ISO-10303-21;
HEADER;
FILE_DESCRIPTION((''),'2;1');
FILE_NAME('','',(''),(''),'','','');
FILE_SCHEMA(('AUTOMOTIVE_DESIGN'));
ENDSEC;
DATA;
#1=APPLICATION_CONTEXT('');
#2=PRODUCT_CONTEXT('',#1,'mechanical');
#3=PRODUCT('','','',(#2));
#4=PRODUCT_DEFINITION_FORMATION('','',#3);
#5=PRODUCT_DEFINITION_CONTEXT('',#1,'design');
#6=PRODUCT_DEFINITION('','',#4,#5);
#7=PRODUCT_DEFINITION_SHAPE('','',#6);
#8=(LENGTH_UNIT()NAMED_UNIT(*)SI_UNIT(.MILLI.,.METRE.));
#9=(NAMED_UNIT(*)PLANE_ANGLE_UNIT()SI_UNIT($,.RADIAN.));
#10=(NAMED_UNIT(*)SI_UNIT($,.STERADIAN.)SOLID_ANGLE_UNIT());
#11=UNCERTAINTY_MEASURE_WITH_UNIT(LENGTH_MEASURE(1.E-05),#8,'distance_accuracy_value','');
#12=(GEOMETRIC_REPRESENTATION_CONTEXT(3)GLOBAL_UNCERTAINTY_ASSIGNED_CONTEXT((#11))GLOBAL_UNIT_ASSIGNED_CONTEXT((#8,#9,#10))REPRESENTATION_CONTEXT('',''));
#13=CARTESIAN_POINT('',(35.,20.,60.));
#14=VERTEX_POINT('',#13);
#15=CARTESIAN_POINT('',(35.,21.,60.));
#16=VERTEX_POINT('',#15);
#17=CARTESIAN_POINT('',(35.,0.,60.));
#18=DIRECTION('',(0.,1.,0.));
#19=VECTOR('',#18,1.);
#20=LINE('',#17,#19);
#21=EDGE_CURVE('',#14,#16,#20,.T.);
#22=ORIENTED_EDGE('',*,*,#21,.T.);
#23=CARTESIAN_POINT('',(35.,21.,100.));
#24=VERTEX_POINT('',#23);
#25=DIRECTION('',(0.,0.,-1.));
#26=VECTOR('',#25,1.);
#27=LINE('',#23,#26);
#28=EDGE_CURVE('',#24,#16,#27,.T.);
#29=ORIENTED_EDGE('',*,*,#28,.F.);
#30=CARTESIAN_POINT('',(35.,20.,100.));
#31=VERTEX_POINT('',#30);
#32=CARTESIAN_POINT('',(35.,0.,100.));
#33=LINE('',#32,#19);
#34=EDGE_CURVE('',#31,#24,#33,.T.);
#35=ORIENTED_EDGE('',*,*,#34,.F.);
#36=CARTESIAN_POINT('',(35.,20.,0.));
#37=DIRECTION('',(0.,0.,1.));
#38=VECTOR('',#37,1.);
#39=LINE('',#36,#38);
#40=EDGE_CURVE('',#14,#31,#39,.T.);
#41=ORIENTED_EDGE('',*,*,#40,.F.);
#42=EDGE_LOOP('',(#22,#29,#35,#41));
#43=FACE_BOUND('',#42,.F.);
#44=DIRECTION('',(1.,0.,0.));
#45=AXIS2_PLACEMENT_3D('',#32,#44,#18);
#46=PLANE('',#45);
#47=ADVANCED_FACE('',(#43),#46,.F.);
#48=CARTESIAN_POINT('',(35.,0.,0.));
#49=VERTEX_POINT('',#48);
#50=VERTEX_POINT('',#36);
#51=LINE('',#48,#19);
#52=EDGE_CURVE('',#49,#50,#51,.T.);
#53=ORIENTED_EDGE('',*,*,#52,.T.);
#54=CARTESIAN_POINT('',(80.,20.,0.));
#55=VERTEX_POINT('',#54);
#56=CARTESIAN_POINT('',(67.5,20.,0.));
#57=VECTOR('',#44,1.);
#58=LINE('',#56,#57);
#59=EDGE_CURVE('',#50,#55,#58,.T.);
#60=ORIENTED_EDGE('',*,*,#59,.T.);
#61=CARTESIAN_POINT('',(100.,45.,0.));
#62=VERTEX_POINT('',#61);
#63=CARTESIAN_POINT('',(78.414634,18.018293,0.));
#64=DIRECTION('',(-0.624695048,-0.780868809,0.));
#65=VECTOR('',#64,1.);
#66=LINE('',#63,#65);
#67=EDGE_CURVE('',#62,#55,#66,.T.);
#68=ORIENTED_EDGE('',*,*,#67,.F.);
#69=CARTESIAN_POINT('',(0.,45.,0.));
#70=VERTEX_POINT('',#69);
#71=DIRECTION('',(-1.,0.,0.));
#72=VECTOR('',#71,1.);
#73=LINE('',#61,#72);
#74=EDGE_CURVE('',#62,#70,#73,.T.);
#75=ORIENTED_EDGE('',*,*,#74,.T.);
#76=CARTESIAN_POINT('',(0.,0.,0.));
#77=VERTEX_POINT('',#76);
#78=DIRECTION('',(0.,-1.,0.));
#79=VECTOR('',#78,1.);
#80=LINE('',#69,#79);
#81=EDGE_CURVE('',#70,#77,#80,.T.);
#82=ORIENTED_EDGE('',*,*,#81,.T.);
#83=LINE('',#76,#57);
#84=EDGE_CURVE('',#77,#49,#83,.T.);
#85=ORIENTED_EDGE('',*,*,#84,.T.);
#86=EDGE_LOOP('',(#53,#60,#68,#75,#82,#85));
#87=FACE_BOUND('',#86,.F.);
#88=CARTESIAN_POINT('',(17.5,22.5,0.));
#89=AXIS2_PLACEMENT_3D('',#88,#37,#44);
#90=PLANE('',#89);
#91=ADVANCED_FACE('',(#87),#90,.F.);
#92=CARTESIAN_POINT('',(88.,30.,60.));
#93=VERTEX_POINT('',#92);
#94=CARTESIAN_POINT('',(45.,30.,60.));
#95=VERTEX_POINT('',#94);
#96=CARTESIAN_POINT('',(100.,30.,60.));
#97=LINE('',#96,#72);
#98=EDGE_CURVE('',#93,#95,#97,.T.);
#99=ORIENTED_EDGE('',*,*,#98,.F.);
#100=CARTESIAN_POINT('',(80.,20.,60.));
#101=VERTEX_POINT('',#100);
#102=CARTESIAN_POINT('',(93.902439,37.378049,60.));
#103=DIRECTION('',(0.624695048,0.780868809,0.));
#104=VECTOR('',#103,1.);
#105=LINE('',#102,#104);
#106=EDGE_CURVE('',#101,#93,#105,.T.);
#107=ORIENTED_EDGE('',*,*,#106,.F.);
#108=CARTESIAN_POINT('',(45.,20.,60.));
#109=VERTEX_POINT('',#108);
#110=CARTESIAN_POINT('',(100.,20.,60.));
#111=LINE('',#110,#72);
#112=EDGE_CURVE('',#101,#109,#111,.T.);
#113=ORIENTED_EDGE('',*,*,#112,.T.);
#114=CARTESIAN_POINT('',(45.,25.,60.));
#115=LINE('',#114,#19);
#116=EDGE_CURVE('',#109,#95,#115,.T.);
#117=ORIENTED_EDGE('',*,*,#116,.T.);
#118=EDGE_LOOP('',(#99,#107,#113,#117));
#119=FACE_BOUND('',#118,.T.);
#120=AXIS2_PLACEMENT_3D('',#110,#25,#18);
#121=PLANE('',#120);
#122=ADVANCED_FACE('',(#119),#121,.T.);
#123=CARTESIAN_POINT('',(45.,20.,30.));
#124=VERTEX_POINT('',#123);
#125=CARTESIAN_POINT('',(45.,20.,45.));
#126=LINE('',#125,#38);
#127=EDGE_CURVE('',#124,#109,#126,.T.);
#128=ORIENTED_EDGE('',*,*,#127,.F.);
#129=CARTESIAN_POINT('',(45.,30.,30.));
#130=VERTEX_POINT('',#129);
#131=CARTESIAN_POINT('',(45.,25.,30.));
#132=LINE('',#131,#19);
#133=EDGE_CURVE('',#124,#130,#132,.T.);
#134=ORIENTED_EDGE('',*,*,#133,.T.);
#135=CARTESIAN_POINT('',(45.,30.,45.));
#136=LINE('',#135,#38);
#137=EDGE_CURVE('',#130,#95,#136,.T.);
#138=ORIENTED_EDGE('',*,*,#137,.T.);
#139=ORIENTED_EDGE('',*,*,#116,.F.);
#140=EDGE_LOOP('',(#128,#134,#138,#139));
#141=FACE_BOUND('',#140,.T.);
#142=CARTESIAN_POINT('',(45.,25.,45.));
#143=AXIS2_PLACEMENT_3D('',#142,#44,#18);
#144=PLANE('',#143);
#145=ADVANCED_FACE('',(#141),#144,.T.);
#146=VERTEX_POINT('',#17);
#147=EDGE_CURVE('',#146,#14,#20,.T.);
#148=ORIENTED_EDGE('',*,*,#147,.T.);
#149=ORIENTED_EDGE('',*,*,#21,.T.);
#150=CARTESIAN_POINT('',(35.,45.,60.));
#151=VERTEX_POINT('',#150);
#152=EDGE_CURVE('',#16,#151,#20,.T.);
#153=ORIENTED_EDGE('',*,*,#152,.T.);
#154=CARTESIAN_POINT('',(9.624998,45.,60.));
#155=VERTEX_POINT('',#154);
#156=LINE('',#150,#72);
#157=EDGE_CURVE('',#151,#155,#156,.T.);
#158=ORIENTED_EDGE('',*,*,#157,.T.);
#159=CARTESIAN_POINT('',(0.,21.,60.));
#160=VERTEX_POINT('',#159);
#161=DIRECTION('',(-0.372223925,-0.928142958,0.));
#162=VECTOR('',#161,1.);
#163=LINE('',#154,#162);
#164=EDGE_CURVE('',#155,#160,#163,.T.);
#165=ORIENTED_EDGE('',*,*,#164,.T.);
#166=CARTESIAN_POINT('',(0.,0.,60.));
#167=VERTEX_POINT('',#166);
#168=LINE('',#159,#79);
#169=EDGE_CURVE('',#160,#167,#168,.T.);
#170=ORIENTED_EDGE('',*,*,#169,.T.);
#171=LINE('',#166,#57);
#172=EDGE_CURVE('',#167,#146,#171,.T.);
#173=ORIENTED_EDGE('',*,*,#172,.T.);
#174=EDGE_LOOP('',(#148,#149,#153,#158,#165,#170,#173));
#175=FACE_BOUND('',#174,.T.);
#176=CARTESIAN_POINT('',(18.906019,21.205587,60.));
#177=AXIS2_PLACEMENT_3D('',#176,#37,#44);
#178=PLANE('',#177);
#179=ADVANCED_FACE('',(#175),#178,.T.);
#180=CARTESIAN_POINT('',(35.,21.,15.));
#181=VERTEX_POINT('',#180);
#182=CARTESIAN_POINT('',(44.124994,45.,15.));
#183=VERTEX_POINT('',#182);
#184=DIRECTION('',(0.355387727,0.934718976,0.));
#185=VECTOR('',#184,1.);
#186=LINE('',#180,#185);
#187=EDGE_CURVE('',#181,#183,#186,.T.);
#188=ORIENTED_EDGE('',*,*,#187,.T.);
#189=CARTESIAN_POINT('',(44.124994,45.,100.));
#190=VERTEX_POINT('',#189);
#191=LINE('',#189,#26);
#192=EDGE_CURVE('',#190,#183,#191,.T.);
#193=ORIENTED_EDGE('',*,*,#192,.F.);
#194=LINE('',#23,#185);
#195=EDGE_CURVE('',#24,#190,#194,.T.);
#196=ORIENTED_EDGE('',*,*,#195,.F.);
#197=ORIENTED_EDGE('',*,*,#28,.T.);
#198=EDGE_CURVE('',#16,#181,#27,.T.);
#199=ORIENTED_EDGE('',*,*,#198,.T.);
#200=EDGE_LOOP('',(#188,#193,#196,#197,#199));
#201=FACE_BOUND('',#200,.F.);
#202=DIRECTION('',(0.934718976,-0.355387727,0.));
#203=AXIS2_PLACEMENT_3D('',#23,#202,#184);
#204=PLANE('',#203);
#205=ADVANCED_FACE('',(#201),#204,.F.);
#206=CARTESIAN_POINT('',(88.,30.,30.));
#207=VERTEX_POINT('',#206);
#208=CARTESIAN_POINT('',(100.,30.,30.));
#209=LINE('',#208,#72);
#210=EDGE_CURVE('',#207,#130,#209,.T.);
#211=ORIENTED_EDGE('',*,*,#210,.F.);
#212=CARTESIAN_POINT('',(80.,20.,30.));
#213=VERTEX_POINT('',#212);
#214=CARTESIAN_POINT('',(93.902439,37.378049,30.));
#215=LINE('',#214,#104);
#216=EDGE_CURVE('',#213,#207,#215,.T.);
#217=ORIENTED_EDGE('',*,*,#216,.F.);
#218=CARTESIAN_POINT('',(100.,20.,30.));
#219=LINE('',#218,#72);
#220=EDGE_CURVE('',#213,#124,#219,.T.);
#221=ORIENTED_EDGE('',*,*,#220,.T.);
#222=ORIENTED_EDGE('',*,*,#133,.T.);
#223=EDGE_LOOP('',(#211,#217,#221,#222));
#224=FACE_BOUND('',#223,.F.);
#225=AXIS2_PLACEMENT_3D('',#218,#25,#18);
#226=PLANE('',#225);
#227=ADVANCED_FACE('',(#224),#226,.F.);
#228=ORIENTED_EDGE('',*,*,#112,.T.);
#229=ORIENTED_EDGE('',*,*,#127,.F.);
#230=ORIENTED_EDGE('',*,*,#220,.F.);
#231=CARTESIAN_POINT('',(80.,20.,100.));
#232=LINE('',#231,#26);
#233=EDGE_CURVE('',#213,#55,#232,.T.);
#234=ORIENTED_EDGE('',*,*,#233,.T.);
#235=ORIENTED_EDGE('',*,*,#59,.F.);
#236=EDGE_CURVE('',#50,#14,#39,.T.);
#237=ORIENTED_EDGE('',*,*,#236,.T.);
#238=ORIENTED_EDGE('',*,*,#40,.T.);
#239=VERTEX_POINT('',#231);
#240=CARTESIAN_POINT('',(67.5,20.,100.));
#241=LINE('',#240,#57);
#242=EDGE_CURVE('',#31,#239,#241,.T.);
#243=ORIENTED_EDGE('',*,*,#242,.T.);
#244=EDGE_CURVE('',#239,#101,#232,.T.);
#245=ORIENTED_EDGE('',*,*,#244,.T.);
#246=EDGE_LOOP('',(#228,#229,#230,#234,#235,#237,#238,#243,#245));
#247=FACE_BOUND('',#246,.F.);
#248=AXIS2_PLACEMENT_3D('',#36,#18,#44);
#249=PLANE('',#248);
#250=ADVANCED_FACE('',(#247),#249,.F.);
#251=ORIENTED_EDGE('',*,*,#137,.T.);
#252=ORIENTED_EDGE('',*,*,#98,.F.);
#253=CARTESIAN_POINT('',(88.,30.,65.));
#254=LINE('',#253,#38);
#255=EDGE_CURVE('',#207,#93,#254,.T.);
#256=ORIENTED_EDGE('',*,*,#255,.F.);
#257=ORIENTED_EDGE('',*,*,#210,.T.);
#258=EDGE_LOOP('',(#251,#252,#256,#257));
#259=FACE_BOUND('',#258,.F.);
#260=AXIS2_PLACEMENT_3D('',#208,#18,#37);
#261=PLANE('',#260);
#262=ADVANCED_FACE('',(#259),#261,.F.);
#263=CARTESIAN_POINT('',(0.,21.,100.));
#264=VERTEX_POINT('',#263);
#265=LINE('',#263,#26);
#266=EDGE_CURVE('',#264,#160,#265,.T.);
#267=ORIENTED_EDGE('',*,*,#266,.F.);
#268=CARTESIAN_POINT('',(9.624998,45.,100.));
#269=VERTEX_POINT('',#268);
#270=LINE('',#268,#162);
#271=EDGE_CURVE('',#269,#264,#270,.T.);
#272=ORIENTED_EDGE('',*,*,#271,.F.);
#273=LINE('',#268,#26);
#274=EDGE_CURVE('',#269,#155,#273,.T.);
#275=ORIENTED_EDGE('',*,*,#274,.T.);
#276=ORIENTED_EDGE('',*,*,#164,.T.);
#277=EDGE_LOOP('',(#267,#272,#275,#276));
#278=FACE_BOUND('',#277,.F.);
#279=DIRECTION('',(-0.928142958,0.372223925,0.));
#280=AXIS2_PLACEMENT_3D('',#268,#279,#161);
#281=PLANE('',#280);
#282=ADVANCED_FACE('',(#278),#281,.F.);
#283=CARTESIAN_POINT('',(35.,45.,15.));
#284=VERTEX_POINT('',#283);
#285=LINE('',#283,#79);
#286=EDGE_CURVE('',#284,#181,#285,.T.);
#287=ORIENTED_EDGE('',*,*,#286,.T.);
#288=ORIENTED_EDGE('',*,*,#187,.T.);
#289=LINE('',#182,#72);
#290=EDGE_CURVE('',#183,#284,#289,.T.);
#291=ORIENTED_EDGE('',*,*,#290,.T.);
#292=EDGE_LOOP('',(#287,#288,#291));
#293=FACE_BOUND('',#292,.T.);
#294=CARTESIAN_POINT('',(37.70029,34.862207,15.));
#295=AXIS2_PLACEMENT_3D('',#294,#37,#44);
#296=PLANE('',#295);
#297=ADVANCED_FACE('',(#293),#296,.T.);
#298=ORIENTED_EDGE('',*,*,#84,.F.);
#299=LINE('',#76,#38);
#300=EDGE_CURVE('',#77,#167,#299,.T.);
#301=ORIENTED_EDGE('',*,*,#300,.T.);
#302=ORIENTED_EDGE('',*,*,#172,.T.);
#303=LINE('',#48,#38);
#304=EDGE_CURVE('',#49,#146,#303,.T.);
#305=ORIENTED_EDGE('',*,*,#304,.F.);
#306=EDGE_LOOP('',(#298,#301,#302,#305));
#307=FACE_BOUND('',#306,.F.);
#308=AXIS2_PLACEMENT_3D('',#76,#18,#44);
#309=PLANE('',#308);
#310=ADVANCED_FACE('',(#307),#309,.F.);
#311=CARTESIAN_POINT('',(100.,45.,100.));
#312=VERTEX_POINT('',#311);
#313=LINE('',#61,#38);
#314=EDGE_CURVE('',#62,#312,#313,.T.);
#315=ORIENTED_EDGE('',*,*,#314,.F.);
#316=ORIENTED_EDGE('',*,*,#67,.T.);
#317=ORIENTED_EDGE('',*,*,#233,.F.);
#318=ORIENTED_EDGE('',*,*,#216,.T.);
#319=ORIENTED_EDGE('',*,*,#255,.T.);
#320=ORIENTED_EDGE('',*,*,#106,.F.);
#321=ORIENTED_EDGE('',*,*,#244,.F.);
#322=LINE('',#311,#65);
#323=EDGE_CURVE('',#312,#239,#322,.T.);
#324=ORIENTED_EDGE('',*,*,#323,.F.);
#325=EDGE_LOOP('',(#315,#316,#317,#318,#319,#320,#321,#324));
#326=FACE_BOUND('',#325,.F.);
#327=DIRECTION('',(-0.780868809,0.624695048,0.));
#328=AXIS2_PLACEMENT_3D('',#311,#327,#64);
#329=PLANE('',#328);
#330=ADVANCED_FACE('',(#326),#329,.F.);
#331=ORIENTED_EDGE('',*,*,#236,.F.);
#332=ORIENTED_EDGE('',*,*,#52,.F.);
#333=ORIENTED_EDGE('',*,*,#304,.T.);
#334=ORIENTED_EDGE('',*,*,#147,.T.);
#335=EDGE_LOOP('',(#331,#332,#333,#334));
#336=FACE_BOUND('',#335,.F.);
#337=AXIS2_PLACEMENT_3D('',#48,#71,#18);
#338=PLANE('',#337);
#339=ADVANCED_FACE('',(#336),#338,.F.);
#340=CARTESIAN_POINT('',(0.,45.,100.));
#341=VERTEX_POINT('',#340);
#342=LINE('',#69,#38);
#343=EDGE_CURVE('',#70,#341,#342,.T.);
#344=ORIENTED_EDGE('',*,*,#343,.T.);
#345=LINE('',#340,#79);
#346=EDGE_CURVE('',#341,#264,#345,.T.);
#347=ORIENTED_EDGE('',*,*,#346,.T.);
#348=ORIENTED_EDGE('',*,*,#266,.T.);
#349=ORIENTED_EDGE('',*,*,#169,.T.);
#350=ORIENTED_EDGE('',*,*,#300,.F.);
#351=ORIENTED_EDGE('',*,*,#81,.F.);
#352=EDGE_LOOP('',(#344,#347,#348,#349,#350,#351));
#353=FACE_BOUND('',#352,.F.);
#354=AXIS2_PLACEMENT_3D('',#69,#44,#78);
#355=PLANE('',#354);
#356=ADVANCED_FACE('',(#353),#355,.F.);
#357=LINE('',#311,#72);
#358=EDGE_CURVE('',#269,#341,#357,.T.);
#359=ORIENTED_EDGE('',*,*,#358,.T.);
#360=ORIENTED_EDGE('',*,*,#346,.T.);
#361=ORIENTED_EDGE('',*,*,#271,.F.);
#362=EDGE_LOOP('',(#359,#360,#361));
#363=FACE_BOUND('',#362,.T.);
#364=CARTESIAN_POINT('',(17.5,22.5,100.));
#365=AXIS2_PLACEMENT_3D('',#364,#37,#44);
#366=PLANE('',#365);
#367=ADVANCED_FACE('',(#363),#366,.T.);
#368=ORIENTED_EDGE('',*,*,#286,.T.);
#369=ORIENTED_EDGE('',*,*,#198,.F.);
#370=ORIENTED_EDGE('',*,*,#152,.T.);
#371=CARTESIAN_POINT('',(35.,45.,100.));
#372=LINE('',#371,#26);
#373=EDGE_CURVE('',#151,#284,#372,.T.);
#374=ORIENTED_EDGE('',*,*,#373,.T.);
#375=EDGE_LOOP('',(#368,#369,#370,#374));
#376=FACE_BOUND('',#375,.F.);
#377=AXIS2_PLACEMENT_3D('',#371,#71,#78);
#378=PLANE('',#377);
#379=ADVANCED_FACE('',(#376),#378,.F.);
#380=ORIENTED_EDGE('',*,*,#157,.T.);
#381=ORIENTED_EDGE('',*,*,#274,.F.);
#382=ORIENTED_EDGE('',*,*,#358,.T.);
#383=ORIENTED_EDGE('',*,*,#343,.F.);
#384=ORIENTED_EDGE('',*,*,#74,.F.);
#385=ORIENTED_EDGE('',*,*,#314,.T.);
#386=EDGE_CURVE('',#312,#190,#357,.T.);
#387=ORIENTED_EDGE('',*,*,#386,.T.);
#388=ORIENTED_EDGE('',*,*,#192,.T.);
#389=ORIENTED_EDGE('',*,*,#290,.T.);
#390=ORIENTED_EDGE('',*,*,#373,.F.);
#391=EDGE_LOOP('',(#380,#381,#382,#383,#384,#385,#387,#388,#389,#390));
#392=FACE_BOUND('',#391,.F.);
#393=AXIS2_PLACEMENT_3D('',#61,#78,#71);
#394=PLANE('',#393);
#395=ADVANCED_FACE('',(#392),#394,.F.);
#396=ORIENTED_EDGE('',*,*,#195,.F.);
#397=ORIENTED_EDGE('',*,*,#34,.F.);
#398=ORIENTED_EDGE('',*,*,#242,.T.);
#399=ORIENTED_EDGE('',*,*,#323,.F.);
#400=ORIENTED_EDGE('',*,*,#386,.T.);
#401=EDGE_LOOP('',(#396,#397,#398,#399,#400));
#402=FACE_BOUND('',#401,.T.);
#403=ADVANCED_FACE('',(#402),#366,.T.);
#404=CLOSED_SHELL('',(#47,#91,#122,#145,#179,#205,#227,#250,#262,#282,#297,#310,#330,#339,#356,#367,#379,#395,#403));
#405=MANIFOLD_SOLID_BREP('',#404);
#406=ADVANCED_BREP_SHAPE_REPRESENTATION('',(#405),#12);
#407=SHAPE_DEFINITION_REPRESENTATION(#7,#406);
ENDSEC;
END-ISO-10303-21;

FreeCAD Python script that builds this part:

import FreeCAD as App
import Part
import Sketcher

V = App.Vector


def add_polygon(sketch, points):
    """Adds a closed chain of lines whose ends are joined by coincident constraints."""
    first, n = sketch.GeometryCount, len(points)
    for a, b in zip(points, points[1:] + points[:1]):
        sketch.addGeometry(Part.LineSegment(App.Vector(*a, 0), App.Vector(*b, 0)), False)
    for i in range(n):
        sketch.addConstraint(Sketcher.Constraint("Coincident", first + i, 2, first + (i + 1) % n, 1))

doc = App.newDocument("Part")
body = doc.addObject("PartDesign::Body", "Body")

# Sketch on XY plane
sketch1 = body.newObject("Sketcher::SketchObject", "Sketch")
sketch1.AttachmentSupport = (doc.getObject("XY_Plane"), [""])
sketch1.MapMode = "FlatFace"
add_polygon(sketch1, [(0, 45), (0, 0), (35, 0), (35, 20), (100, 20), (100, 45)])  # lines 0-5
sketch1.addConstraint([
    Sketcher.Constraint("Vertical", 0),
    Sketcher.Constraint("Horizontal", 1),
    Sketcher.Constraint("Vertical", 2),
    Sketcher.Constraint("Horizontal", 3),
    Sketcher.Constraint("Vertical", 4),
    Sketcher.Constraint("Horizontal", 5),
    Sketcher.Constraint("Coincident", 0, 2, -1, 1),
    Sketcher.Constraint("DistanceX", 1, 1, 1, 2, 35.0),
    Sketcher.Constraint("DistanceX", 3, 1, 3, 2, 65.0),
    Sketcher.Constraint("DistanceY", 0, 2, 0, 1, 45.0),
    Sketcher.Constraint("DistanceY", 2, 1, 2, 2, 20.0),
])
pad1 = body.newObject("PartDesign::Pad", "Pad")
pad1.Profile = sketch1
pad1.Length = 100

# Sketch on XY plane
sketch2 = body.newObject("Sketcher::SketchObject", "Sketch001")
sketch2.AttachmentSupport = (doc.getObject("XY_Plane"), [""])
sketch2.MapMode = "FlatFace"
sketch2.AttachmentOffset = App.Placement(V(0, 0, 100), App.Rotation())
add_polygon(sketch2, [(35, 0), (35, 45), (10, 45), (0, 21), (0, 0)])  # lines 0-4
sketch2.addConstraint([
    Sketcher.Constraint("Vertical", 0),
    Sketcher.Constraint("Horizontal", 1),
    Sketcher.Constraint("Vertical", 3),
    Sketcher.Constraint("Horizontal", 4),
    Sketcher.Constraint("Coincident", 3, 2, -1, 1),
    Sketcher.Constraint("DistanceX", 4, 1, 4, 2, 35.0),
    Sketcher.Constraint("DistanceY", 0, 1, 0, 2, 45.0),
    Sketcher.Constraint("DistanceY", 3, 2, 3, 1, 21.0),
    Sketcher.Constraint("DistanceX", 1, 2, 1, 1, 25.375002),
])
pocket1 = body.newObject("PartDesign::Pocket", "Pocket")
pocket1.Profile = sketch2
pocket1.Length = 40

# Sketch on XY plane
sketch3 = body.newObject("Sketcher::SketchObject", "Sketch002")
sketch3.AttachmentSupport = (doc.getObject("XY_Plane"), [""])
sketch3.MapMode = "FlatFace"
sketch3.AttachmentOffset = App.Placement(V(0, 0, 100), App.Rotation())
add_polygon(sketch3, [(35, 45), (35, 21), (44, 45)])  # lines 0-2
sketch3.addConstraint([
    Sketcher.Constraint("Vertical", 0),
    Sketcher.Constraint("Horizontal", 2),
    Sketcher.Constraint("DistanceY", 0, 2, 0, 1, 24.0),
    Sketcher.Constraint("DistanceX", -1, 1, 0, 2, 35.0),
    Sketcher.Constraint("DistanceY", -1, 1, 0, 2, 21.0),
    Sketcher.Constraint("DistanceX", 2, 2, 2, 1, 9.124994),
])
pocket2 = body.newObject("PartDesign::Pocket", "Pocket001")
pocket2.Profile = sketch3
pocket2.Length = 85

# Sketch on YZ plane
sketch4 = body.newObject("Sketcher::SketchObject", "Sketch003")
sketch4.AttachmentSupport = (doc.getObject("YZ_Plane"), [""])
sketch4.MapMode = "FlatFace"
sketch4.AttachmentOffset = App.Placement(V(0, 0, 100), App.Rotation())
add_polygon(sketch4, [(20, 60), (20, 30), (30, 30), (30, 60)])  # lines 0-3
sketch4.addConstraint([
    Sketcher.Constraint("Vertical", 0),
    Sketcher.Constraint("Horizontal", 1),
    Sketcher.Constraint("Vertical", 2),
    Sketcher.Constraint("Horizontal", 3),
    Sketcher.Constraint("DistanceX", 1, 1, 1, 2, 10.0),
    Sketcher.Constraint("DistanceY", 0, 2, 0, 1, 30.0),
    Sketcher.Constraint("DistanceX", -1, 1, 0, 2, 20.0),
    Sketcher.Constraint("DistanceY", -1, 1, 0, 2, 30.0),
])
pocket3 = body.newObject("PartDesign::Pocket", "Pocket002")
pocket3.Profile = sketch4
pocket3.Length = 55

# Sketch on XY plane
sketch5 = body.newObject("Sketcher::SketchObject", "Sketch004")
sketch5.AttachmentSupport = (doc.getObject("XY_Plane"), [""])
sketch5.MapMode = "FlatFace"
sketch5.AttachmentOffset = App.Placement(V(0, 0, 100), App.Rotation())
add_polygon(sketch5, [(100, 20), (100, 45), (80, 20)])  # lines 0-2
sketch5.addConstraint([
    Sketcher.Constraint("Vertical", 0),
    Sketcher.Constraint("Horizontal", 2),
    Sketcher.Constraint("DistanceX", 2, 1, 2, 2, 20.0),
    Sketcher.Constraint("DistanceY", 0, 1, 0, 2, 25.0),
    Sketcher.Constraint("DistanceX", -1, 1, 0, 2, 100.0),
    Sketcher.Constraint("DistanceY", -1, 1, 0, 2, 45.0),
])
pocket4 = body.newObject("PartDesign::Pocket", "Pocket003")
pocket4.Profile = sketch5
pocket4.Type = "ThroughAll"

doc.recompute()
